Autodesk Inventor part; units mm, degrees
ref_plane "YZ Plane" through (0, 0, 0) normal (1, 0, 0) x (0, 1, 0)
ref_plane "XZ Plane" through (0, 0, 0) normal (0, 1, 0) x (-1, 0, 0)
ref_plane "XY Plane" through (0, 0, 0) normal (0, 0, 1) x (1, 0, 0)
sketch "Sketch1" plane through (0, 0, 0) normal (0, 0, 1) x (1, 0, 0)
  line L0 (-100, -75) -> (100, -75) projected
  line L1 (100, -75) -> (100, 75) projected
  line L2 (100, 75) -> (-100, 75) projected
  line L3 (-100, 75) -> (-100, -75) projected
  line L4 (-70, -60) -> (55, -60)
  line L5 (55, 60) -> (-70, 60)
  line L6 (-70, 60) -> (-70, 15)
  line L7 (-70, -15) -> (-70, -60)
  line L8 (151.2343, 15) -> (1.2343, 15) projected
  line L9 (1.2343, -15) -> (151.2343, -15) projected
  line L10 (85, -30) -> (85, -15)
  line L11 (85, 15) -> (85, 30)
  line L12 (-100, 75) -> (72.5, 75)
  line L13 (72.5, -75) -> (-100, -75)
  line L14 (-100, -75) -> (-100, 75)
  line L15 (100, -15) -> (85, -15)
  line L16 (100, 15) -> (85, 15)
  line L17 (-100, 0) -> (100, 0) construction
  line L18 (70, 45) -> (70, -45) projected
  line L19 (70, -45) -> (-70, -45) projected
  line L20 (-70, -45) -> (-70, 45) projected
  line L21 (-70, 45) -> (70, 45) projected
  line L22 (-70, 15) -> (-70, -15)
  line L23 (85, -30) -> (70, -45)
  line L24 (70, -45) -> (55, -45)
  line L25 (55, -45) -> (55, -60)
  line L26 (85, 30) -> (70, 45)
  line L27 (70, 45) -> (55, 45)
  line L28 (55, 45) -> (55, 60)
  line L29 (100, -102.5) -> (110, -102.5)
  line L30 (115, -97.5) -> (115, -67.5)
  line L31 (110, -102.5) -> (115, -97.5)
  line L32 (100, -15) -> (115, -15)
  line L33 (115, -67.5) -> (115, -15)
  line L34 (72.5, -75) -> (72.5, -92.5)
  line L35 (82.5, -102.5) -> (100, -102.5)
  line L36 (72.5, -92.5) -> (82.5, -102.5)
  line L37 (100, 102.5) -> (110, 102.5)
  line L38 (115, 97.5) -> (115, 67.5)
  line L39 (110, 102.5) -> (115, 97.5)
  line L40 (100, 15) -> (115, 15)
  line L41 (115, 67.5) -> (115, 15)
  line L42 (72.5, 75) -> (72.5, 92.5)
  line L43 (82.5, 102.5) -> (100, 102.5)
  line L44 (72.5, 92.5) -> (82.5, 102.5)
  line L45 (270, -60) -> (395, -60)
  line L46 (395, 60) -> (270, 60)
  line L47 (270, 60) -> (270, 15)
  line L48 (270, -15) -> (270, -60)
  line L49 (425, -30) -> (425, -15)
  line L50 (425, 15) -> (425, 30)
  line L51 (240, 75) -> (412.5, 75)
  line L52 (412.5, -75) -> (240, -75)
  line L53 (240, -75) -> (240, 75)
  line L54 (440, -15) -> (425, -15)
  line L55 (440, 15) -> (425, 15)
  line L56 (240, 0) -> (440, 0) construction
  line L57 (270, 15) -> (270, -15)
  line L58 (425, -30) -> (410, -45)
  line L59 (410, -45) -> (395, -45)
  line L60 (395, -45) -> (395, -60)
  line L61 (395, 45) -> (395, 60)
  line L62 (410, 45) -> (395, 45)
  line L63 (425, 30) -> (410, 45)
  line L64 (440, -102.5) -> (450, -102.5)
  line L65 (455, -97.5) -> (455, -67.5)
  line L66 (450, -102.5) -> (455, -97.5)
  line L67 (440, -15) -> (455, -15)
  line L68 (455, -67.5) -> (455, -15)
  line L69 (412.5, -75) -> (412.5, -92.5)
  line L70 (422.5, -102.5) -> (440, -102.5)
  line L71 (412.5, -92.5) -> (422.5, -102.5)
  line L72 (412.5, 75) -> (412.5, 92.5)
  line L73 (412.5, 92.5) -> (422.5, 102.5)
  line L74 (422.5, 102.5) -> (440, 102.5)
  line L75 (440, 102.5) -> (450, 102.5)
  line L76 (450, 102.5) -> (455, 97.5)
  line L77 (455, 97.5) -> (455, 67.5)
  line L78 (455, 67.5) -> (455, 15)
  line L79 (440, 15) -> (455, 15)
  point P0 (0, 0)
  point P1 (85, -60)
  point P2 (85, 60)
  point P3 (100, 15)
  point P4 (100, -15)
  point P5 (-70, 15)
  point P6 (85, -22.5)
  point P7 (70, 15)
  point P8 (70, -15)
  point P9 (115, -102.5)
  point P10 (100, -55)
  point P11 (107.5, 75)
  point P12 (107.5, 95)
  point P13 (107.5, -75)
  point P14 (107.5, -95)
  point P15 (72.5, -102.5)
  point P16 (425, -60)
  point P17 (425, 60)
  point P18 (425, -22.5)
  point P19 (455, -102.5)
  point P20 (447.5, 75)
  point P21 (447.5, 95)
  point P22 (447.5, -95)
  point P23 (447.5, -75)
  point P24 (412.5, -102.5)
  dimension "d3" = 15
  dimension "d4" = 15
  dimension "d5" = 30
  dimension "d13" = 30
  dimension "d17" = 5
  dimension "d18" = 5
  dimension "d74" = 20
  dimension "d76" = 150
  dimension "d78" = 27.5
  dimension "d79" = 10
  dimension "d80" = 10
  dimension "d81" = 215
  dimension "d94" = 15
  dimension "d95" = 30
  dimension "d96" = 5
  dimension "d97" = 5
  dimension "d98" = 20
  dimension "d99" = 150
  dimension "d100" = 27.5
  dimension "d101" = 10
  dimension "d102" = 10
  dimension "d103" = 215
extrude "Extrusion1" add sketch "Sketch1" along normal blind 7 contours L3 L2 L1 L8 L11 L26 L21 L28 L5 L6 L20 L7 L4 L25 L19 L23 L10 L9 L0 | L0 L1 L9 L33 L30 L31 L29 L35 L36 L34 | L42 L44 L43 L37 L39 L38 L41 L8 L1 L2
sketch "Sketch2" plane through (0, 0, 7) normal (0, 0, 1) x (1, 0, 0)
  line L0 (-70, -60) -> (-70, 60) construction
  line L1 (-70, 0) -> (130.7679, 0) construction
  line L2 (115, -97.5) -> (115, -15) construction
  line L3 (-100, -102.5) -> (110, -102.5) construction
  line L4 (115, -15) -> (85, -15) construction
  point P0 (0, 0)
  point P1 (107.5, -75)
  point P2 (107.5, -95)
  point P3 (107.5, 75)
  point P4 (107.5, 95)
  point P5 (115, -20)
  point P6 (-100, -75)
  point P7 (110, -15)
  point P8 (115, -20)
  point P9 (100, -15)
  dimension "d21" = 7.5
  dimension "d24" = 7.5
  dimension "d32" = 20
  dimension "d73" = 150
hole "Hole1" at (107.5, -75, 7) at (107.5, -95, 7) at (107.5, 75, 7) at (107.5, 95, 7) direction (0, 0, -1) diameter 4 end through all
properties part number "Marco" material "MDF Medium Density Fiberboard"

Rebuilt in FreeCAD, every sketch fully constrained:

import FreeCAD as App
import Part
import Sketcher

V = App.Vector
Q = App.Units.Quantity


def add_polygon(sketch, points):
    """Adds a closed chain of lines whose ends are joined by coincident constraints."""
    first, n = sketch.GeometryCount, len(points)
    for a, b in zip(points, points[1:] + points[:1]):
        sketch.addGeometry(Part.LineSegment(App.Vector(*a, 0), App.Vector(*b, 0)), False)
    for i in range(n):
        sketch.addConstraint(Sketcher.Constraint("Coincident", first + i, 2, first + (i + 1) % n, 1))

doc = App.newDocument("Part")
body = doc.addObject("PartDesign::Body", "Body")

# Sketch on XY plane
sketch1 = doc.addObject("Sketcher::SketchObject", "Sketch")
body.addObject(sketch1)
sketch1.AttachmentSupport = (doc.XY_Plane, [""])
sketch1.MapMode = "FlatFace"
add_polygon(sketch1, [(-100, 75), (-100, -75), (72, -75), (72, -92), (82, -102), (110, -102), (115, -98), (115, -15), (85, -15), (85, -30), (70, -45), (55, -45), (55, -60), (-70, -60), (-70, 60), (55, 60), (55, 45), (70, 45), (85, 30), (85, 15), (115, 15), (115, 98), (110, 102), (82, 102), (72, 92), (72, 75)])  # lines 0-25
sketch1.addConstraint(Sketcher.Constraint("Vertical", 0))
sketch1.addConstraint(Sketcher.Constraint("Horizontal", 1))
sketch1.addConstraint(Sketcher.Constraint("Vertical", 2))
sketch1.addConstraint(Sketcher.Constraint("Horizontal", 4))
sketch1.addConstraint(Sketcher.Constraint("Vertical", 6))
sketch1.addConstraint(Sketcher.Constraint("Horizontal", 7))
sketch1.addConstraint(Sketcher.Constraint("Vertical", 8))
sketch1.addConstraint(Sketcher.Constraint("Horizontal", 10))
sketch1.addConstraint(Sketcher.Constraint("Vertical", 11))
sketch1.addConstraint(Sketcher.Constraint("Horizontal", 12))
sketch1.addConstraint(Sketcher.Constraint("Vertical", 13))
sketch1.addConstraint(Sketcher.Constraint("Horizontal", 14))
sketch1.addConstraint(Sketcher.Constraint("Vertical", 15))
sketch1.addConstraint(Sketcher.Constraint("Horizontal", 16))
sketch1.addConstraint(Sketcher.Constraint("Vertical", 18))
sketch1.addConstraint(Sketcher.Constraint("Horizontal", 19))
sketch1.addConstraint(Sketcher.Constraint("Vertical", 20))
sketch1.addConstraint(Sketcher.Constraint("Horizontal", 22))
sketch1.addConstraint(Sketcher.Constraint("Vertical", 24))
sketch1.addConstraint(Sketcher.Constraint("Horizontal", 25))
sketch1.addConstraint(Sketcher.Constraint("Symmetric", 11, 2, 14, 2, -1))
sketch1.addConstraint(Sketcher.Constraint("Symmetric", 9, 2, 16, 2, -1))
sketch1.addConstraint(Sketcher.Constraint("Symmetric", 8, 2, 17, 2, -1))
sketch1.addConstraint(Sketcher.Constraint("Symmetric", 6, 2, 19, 2, -1))
sketch1.addConstraint(Sketcher.Constraint("Symmetric", 4, 2, 21, 2, -1))
sketch1.addConstraint(Sketcher.Constraint("Symmetric", 2, 2, 23, 2, -1))
sketch1.addConstraint(Sketcher.Constraint("Perpendicular", 3, 5))
sketch1.addConstraint(Sketcher.Constraint("Parallel", 5, 9))
sketch1.addConstraint(Sketcher.Constraint("Perpendicular", 9, 17))
sketch1.addConstraint(Sketcher.Constraint("Parallel", 17, 21))
sketch1.addConstraint(Sketcher.Constraint("Perpendicular", 21, 23))
sketch1.addConstraint(Sketcher.Constraint("Equal", 16, 8))
sketch1.addConstraint(Sketcher.Constraint("Equal", 8, 11))
sketch1.addConstraint(Sketcher.Constraint("Equal", 2, 24))
sketch1.addConstraint(Sketcher.Constraint("DistanceX", 7, 2, 7, 1, Q("30 mm")))
sketch1.addConstraint(Sketcher.Constraint("DistanceX", 10, 2, 10, 1, Q("15 mm")))
sketch1.addConstraint(Sketcher.Constraint("DistanceY", 0, 2, 0, 1, Q("150 mm")))
sketch1.addConstraint(Sketcher.Constraint("DistanceX", 4, 1, 4, 2, Q("27.5 mm")))
sketch1.addConstraint(Sketcher.Constraint("DistanceY", 6, 2, -1, 1, Q("15 mm")))
sketch1.addConstraint(Sketcher.Constraint("DistanceX", 2, 2, 3, 2, Q("10 mm")))
sketch1.addConstraint(Sketcher.Constraint("DistanceX", 4, 2, 5, 2, Q("5 mm")))
sketch1.addConstraint(Sketcher.Constraint("DistanceX", 0, 2, 5, 2, Q("215 mm")))
sketch1.addConstraint(Sketcher.Constraint("DistanceX", 9, 2, 8, 2, Q("15 mm")))
sketch1.addConstraint(Sketcher.Constraint("DistanceX", 0, 2, 12, 2, Q("30 mm")))
sketch1.addConstraint(Sketcher.Constraint("DistanceY", 3, 2, 1, 2, Q("27.5 mm")))
sketch1.addConstraint(Sketcher.Constraint("DistanceX", 0, 2, -1, 1, Q("100 mm")))
pad1 = doc.addObject("PartDesign::Pad", "Pad")
body.addObject(pad1)
pad1.Profile = sketch1
pad1.Length = 7

# Sketch on XY plane
sketch2 = doc.addObject("Sketcher::SketchObject", "Sketch001")
body.addObject(sketch2)
sketch2.AttachmentSupport = (doc.XY_Plane, [""])
sketch2.MapMode = "FlatFace"
sketch2.AttachmentOffset = App.Placement(V(0, 0, 7), App.Rotation())
sketch2.addGeometry(Part.Circle(V(107.5, -75, 0), V(0, 0, 1), 2), False)
sketch2.addGeometry(Part.Circle(V(107.5, -95, 0), V(0, 0, 1), 2), False)
sketch2.addGeometry(Part.Circle(V(107.5, 75, 0), V(0, 0, 1), 2), False)
sketch2.addGeometry(Part.Circle(V(107.5, 95, 0), V(0, 0, 1), 2), False)
sketch2.addConstraint(Sketcher.Constraint("Equal", 0, 1))
sketch2.addConstraint(Sketcher.Constraint("Equal", 1, 2))
sketch2.addConstraint(Sketcher.Constraint("Equal", 2, 3))
sketch2.addConstraint(Sketcher.Constraint("Symmetric", 0, 3, 2, 3, -1))
sketch2.addConstraint(Sketcher.Constraint("Symmetric", 1, 3, 3, 3, -1))
sketch2.addConstraint(Sketcher.Constraint("Vertical", 0, 3, 1, 3))
sketch2.addConstraint(Sketcher.Constraint("Diameter", 0, Q("4 mm")))
sketch2.addConstraint(Sketcher.Constraint("DistanceY", 0, 3, -1, 1, Q("75 mm")))
sketch2.addConstraint(Sketcher.Constraint("DistanceY", 1, 3, -1, 1, Q("95 mm")))
sketch2.addConstraint(Sketcher.Constraint("DistanceX", -1, 1, 0, 3, Q("107.5 mm")))
doc.recompute()
hole = doc.addObject("PartDesign::Hole", "Hole")
body.addObject(hole)
hole.Profile = sketch2
hole.ThreadType = "None"
hole.Diameter = 4
hole.DepthType = "ThroughAll"

doc.recompute()
